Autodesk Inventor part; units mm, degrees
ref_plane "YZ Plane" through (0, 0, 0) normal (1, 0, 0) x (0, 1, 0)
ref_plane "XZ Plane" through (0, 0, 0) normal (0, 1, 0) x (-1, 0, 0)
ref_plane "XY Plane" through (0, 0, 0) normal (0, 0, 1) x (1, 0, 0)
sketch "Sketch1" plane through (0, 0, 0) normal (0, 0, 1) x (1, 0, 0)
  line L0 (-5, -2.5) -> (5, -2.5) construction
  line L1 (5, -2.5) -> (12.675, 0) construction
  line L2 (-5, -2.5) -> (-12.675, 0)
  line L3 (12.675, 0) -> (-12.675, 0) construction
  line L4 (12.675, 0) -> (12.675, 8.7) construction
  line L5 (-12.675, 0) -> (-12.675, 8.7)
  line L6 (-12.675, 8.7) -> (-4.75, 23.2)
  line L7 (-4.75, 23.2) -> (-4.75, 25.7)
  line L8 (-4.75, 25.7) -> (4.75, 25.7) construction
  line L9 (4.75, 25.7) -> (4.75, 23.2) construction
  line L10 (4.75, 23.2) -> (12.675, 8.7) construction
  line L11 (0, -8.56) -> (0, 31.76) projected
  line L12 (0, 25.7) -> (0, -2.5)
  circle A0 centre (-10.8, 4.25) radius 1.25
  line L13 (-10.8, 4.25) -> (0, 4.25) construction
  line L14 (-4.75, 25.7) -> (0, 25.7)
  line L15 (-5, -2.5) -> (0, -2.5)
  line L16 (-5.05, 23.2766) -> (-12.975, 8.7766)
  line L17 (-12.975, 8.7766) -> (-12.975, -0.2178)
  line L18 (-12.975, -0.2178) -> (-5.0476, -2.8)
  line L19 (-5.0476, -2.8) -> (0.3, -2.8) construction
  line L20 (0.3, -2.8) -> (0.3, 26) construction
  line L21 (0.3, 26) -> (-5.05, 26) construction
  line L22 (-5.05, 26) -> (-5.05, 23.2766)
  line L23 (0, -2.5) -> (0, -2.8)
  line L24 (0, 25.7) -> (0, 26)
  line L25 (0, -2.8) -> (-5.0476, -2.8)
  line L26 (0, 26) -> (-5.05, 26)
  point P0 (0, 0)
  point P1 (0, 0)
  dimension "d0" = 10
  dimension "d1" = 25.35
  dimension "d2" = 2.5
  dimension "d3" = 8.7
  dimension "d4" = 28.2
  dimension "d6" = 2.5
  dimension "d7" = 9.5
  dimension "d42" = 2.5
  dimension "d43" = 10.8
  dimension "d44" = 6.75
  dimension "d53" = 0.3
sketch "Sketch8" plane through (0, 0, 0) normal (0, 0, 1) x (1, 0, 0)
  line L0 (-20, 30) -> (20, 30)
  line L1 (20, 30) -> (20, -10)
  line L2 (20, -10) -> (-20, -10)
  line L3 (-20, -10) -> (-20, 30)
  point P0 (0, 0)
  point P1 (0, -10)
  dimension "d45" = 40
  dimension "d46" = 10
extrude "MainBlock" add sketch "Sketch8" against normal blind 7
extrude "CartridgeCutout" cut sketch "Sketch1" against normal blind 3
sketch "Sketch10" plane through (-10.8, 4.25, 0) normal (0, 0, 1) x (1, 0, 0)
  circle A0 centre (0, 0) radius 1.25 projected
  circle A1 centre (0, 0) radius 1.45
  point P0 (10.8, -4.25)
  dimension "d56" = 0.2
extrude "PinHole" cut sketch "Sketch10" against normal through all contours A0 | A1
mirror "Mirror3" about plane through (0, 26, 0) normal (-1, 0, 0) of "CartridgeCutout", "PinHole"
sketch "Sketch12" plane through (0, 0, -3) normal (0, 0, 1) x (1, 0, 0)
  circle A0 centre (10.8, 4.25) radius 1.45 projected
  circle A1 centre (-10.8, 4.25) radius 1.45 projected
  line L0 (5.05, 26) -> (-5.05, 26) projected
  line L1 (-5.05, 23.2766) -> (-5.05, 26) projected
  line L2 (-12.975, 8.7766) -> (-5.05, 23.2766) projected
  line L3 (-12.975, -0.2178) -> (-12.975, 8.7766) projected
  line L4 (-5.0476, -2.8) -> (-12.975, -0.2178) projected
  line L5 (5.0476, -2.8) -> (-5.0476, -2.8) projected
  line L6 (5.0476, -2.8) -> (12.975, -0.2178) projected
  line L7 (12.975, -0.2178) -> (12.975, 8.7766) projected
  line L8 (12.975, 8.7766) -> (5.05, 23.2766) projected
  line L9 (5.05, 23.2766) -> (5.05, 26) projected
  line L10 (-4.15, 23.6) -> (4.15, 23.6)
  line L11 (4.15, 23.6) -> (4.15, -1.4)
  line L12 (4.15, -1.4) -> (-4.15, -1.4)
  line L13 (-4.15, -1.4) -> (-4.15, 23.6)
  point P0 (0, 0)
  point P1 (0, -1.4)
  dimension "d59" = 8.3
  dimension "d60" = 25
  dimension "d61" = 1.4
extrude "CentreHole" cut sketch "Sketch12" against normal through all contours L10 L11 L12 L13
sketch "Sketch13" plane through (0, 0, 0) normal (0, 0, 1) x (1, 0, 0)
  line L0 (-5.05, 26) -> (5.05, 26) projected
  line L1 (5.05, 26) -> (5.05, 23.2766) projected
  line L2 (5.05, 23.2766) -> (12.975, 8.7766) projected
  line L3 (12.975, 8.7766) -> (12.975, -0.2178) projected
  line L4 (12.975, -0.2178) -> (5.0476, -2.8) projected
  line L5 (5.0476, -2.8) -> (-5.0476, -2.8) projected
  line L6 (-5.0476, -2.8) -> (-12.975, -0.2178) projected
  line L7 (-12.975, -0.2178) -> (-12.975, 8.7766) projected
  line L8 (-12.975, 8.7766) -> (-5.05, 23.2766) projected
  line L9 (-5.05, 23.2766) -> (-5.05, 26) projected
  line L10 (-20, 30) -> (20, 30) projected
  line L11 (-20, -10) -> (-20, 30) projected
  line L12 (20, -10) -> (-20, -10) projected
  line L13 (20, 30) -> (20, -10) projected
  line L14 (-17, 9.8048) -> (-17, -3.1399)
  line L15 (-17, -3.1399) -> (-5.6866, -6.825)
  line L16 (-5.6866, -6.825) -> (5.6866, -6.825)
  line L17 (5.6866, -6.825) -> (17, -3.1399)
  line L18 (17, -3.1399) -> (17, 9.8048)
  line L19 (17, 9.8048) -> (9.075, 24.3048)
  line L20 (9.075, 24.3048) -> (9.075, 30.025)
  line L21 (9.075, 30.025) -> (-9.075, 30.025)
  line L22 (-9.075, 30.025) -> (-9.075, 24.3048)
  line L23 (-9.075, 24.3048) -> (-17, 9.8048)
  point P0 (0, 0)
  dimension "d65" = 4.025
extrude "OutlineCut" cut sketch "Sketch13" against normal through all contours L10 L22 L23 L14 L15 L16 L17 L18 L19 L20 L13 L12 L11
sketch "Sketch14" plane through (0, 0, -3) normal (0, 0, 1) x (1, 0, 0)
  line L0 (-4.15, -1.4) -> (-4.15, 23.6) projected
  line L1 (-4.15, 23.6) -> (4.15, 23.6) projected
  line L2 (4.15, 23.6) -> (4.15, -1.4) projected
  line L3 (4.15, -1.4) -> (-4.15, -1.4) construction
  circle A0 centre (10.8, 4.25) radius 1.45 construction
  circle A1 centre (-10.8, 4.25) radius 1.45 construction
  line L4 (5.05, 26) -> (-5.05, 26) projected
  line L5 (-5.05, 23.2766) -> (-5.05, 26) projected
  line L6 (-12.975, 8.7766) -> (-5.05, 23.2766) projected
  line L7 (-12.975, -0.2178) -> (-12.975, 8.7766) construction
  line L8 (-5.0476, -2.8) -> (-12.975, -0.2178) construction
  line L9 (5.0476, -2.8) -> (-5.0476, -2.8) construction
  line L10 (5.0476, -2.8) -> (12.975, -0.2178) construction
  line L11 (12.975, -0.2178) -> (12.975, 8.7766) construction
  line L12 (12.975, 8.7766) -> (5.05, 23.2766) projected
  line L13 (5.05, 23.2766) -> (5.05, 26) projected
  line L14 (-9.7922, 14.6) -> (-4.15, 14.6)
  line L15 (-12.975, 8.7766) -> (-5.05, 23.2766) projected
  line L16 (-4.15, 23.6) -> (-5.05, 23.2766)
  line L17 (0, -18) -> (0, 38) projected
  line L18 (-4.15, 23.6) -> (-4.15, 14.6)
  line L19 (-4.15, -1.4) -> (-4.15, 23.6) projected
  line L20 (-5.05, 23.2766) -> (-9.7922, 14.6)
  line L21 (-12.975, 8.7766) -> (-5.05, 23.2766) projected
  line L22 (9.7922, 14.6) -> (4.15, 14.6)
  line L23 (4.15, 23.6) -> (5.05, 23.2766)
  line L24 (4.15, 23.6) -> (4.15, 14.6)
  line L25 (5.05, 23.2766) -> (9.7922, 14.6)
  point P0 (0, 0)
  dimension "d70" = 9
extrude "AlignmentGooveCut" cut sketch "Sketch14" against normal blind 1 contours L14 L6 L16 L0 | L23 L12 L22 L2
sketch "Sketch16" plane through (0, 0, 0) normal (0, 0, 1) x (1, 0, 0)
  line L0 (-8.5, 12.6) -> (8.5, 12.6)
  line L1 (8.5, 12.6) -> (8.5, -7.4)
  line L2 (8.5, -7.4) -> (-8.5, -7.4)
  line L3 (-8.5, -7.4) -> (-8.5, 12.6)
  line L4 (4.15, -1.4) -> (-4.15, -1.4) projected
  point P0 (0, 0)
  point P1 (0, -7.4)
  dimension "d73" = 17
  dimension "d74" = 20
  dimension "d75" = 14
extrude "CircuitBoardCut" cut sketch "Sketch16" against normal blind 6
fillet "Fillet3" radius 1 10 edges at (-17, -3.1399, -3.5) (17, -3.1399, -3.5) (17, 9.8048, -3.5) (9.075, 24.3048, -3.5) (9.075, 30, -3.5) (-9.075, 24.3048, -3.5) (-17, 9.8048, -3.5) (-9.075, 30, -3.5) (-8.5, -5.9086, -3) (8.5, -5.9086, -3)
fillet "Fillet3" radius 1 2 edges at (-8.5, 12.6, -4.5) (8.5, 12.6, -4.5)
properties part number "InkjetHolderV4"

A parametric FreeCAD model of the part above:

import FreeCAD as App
import Part
import Sketcher
from FreeCAD import Vector
Q = App.Units.Quantity


def edges_at(feature, points):
    """Names of the edges that pass closest to the given points."""
    edges = feature.Shape.Edges
    near = lambda p: min(range(len(edges)), key=lambda i: edges[i].distToShape(Part.Vertex(*p))[0])
    return sorted({f"Edge{near(p) + 1}" for p in points})


def add_polygon(sketch, points):
    """Adds a closed chain of lines whose ends are joined by coincident constraints."""
    first, n = sketch.GeometryCount, len(points)
    for a, b in zip(points, points[1:] + points[:1]):
        sketch.addGeometry(Part.LineSegment(App.Vector(*a, 0), App.Vector(*b, 0)), False)
    for i in range(n):
        sketch.addConstraint(Sketcher.Constraint("Coincident", first + i, 2, first + (i + 1) % n, 1))

doc = App.newDocument("Part")
body = doc.addObject("PartDesign::Body", "Body")

# Sketch on XY plane
sketch1 = body.newObject("Sketcher::SketchObject", "Sketch")
sketch1.AttachmentSupport = (doc.getObject("XY_Plane"), [""])
sketch1.MapMode = "FlatFace"
add_polygon(sketch1, [(20, 30), (-20, 30), (-20, -10), (20, -10)])  # lines 0-3
sketch1.addConstraint([
    Sketcher.Constraint("Horizontal", 0),
    Sketcher.Constraint("Vertical", 1),
    Sketcher.Constraint("Horizontal", 2),
    Sketcher.Constraint("Vertical", 3),
    Sketcher.Constraint("Equal", 2, 1),
    Sketcher.Constraint("DistanceX", 0, 2, 0, 1, 40.0),
    Sketcher.Constraint("DistanceY", 1, 2, -1, 1, 10.0),
    Sketcher.Constraint("DistanceX", 0, 2, -1, 1, 20.0),
])
pad1 = body.newObject("PartDesign::Pad", "Pad")
pad1.Profile = sketch1
pad1.Length = 7
pad1.Reversed = True

# Sketch on XY plane
sketch2 = body.newObject("Sketcher::SketchObject", "Sketch001")
sketch2.AttachmentSupport = (doc.getObject("XY_Plane"), [""])
sketch2.MapMode = "FlatFace"
add_polygon(sketch2, [(0, -2.8), (0, 26), (-5.05, 26), (-5.05, 23.2766), (-12.975, 8.7766), (-12.975, -0.2178), (-5.0476, -2.8)])  # lines 0-6
sketch2.addGeometry(Part.Circle(Vector(-10.8, 4.25, 0), Vector(0, 0, 1), 1.25), False)  # 7
sketch2.addConstraint([
    Sketcher.Constraint("Vertical", 0),
    Sketcher.Constraint("Horizontal", 1),
    Sketcher.Constraint("Vertical", 2),
    Sketcher.Constraint("Vertical", 4),
    Sketcher.Constraint("Horizontal", 6),
    Sketcher.Constraint("PointOnObject", 0, 2, -2),
    Sketcher.Constraint("Diameter", 7, 2.5),
    Sketcher.Constraint("DistanceX", 7, 3, -1, 1, 10.8),
    Sketcher.Constraint("DistanceY", 0, 1, 0, 2, 28.8),
    Sketcher.Constraint("DistanceY", -1, 1, 0, 2, 26.0),
    Sketcher.Constraint("DistanceX", 1, 2, 1, 1, 5.05),
    Sketcher.Constraint("Angle", 3, Q("-118.659 deg")),
    Sketcher.Constraint("DistanceY", 3, 2, 2, 2, 14.5),
    Sketcher.Constraint("DistanceY", -1, 1, 7, 3, 4.25),
    Sketcher.Constraint("DistanceX", 6, 1, 6, 2, 5.0476),
    Sketcher.Constraint("DistanceY", 2, 2, 2, 1, 2.7234),
    Sketcher.Constraint("DistanceY", 4, 2, 4, 1, 8.9944),
])
pocket1 = body.newObject("PartDesign::Pocket", "Pocket")
pocket1.Profile = sketch2
pocket1.Length = 3

# Sketch on XY plane
sketch3 = body.newObject("Sketcher::SketchObject", "Sketch002")
sketch3.AttachmentSupport = (doc.getObject("XY_Plane"), [""])
sketch3.MapMode = "FlatFace"
sketch3.addGeometry(Part.Circle(Vector(-10.8, 4.25, 0), Vector(0, 0, 1), 1.45), False)
sketch3.addConstraint([
    Sketcher.Constraint("Diameter", 0, 2.9),
    Sketcher.Constraint("DistanceX", 0, 3, -1, 1, 10.8),
    Sketcher.Constraint("DistanceY", -1, 1, 0, 3, 4.25),
])
pocket2 = body.newObject("PartDesign::Pocket", "Pocket001")
pocket2.Profile = sketch3
pocket2.Type = "ThroughAll"
doc.recompute()

mirrored = body.newObject("PartDesign::Mirrored", "Mirrored")
mirrored.Originals = [pocket1, pocket2]
mirrored.MirrorPlane = (doc.getObject("YZ_Plane"), [""])
body.Tip = mirrored

# Sketch on XY plane
sketch4 = body.newObject("Sketcher::SketchObject", "Sketch003")
sketch4.AttachmentSupport = (doc.getObject("XY_Plane"), [""])
sketch4.MapMode = "FlatFace"
sketch4.AttachmentOffset = App.Placement(Vector(0, 0, -3), App.Rotation())
add_polygon(sketch4, [(4.15, 23.6), (-4.15, 23.6), (-4.15, -1.4), (4.15, -1.4)])  # lines 0-3
sketch4.addConstraint([
    Sketcher.Constraint("Horizontal", 0),
    Sketcher.Constraint("Vertical", 1),
    Sketcher.Constraint("Horizontal", 2),
    Sketcher.Constraint("Vertical", 3),
    Sketcher.Constraint("DistanceY", 1, 2, 1, 1, 25.0),
    Sketcher.Constraint("DistanceX", 0, 2, 0, 1, 8.3),
    Sketcher.Constraint("DistanceY", 1, 2, -1, 1, 1.4),
    Sketcher.Constraint("DistanceX", 0, 2, -1, 1, 4.15),
])
pocket3 = body.newObject("PartDesign::Pocket", "Pocket002")
pocket3.Profile = sketch4
pocket3.Type = "ThroughAll"

# Sketch on XY plane
sketch5 = body.newObject("Sketcher::SketchObject", "Sketch004")
sketch5.AttachmentSupport = (doc.getObject("XY_Plane"), [""])
sketch5.MapMode = "FlatFace"
add_polygon(sketch5, [(-9.075, 30), (-20, 30), (-20, -10), (20, -10), (20, 30), (9.075, 30), (9.075, 24.3048), (17, 9.8048), (17, -3.1399), (5.6866, -6.825), (-5.6866, -6.825), (-17, -3.1399), (-17, 9.8048), (-9.075, 24.3048)])  # lines 0-13
sketch5.addConstraint([
    Sketcher.Constraint("Horizontal", 0),
    Sketcher.Constraint("Vertical", 1),
    Sketcher.Constraint("Horizontal", 2),
    Sketcher.Constraint("Vertical", 3),
    Sketcher.Constraint("Horizontal", 4),
    Sketcher.Constraint("Vertical", 5),
    Sketcher.Constraint("Vertical", 7),
    Sketcher.Constraint("Horizontal", 9),
    Sketcher.Constraint("Vertical", 11),
    Sketcher.Constraint("Vertical", 13),
    Sketcher.Constraint("Symmetric", 0, 2, 3, 2, -2),
    Sketcher.Constraint("Symmetric", 7, 2, 10, 2, -2),
    Sketcher.Constraint("Symmetric", 5, 2, 12, 2, -2),
    Sketcher.Constraint("Horizontal", 6, 2, 11, 2),
    Sketcher.Constraint("Equal", 2, 1),
    Sketcher.Constraint("Equal", 8, 10),
    Sketcher.Constraint("DistanceX", 2, 1, 2, 2, 40.0),
    Sketcher.Constraint("DistanceY", -1, 1, 0, 2, 30.0),
    Sketcher.Constraint("DistanceX", -1, 1, 6, 2, 17.0),
    Sketcher.Constraint("Angle", 6, Q("-61.341 deg")),
    Sketcher.Constraint("DistanceY", 6, 2, 5, 2, 14.5),
    Sketcher.Constraint("DistanceY", 7, 2, -1, 1, 3.14),
    Sketcher.Constraint("DistanceX", 9, 2, 9, 1, 11.3732),
    Sketcher.Constraint("DistanceY", 5, 2, 5, 1, 5.6952),
    Sketcher.Constraint("DistanceY", 8, 2, -1, 1, 6.825),
])
pocket4 = body.newObject("PartDesign::Pocket", "Pocket003")
pocket4.Profile = sketch5
pocket4.Type = "ThroughAll"

# Sketch on XY plane
sketch6 = body.newObject("Sketcher::SketchObject", "Sketch005")
sketch6.AttachmentSupport = (doc.getObject("XY_Plane"), [""])
sketch6.MapMode = "FlatFace"
sketch6.AttachmentOffset = App.Placement(Vector(0, 0, -3), App.Rotation())
add_polygon(sketch6, [(-9.7922, 14.6), (-4.15, 14.6), (-4.15, 23.6), (-5.05, 23.2766)])  # lines 0-3
add_polygon(sketch6, [(5.05, 23.2766), (4.15, 23.6), (4.15, 14.6), (9.792208, 14.600004)])  # lines 4-7
sketch6.addConstraint([
    Sketcher.Constraint("Horizontal", 0),
    Sketcher.Constraint("Vertical", 1),
    Sketcher.Constraint("Vertical", 5),
    Sketcher.Constraint("Horizontal", 6),
    Sketcher.Constraint("Symmetric", 1, 2, 4, 2, -2),
    Sketcher.Constraint("Symmetric", 3, 2, 6, 2, -2),
    Sketcher.Constraint("Symmetric", 2, 2, 7, 2, -2),
    Sketcher.Constraint("DistanceY", 1, 1, 1, 2, 9.0),
    Sketcher.Constraint("DistanceY", -1, 1, 0, 2, 14.6),
    Sketcher.Constraint("Angle", 3, Q("-118.659 deg")),
    Sketcher.Constraint("DistanceX", 2, 2, 1, 2, 0.9),
    Sketcher.Constraint("DistanceX", 1, 2, 4, 2, 8.3),
    Sketcher.Constraint("Distance", 3, 9.888),
])
pocket5 = body.newObject("PartDesign::Pocket", "Pocket004")
pocket5.Profile = sketch6
pocket5.Length = 1

# Sketch on XY plane
sketch7 = body.newObject("Sketcher::SketchObject", "Sketch006")
sketch7.AttachmentSupport = (doc.getObject("XY_Plane"), [""])
sketch7.MapMode = "FlatFace"
add_polygon(sketch7, [(8.5, 12.6), (-8.5, 12.6), (-8.5, -7.4), (8.5, -7.4)])  # lines 0-3
sketch7.addConstraint([
    Sketcher.Constraint("Horizontal", 0),
    Sketcher.Constraint("Vertical", 1),
    Sketcher.Constraint("Horizontal", 2),
    Sketcher.Constraint("Vertical", 3),
    Sketcher.Constraint("DistanceX", 0, 2, 0, 1, 17.0),
    Sketcher.Constraint("DistanceY", 1, 2, 1, 1, 20.0),
    Sketcher.Constraint("DistanceX", 0, 2, -1, 1, 8.5),
    Sketcher.Constraint("DistanceY", -1, 1, 0, 2, 12.6),
])
pocket6 = body.newObject("PartDesign::Pocket", "Pocket005")
pocket6.Profile = sketch7
pocket6.Length = 6
doc.recompute()

fillet = body.newObject("PartDesign::Fillet", "Fillet")
fillet.Base = (pocket6, edges_at(pocket6, [
    (-17, -3.14, -3.5),
    (17, -3.14, -3.5),
    (17, 9.805, -3.5),
    (9.075, 24.305, -3.5),
    (9.075, 30, -3.5),
    (-9.075, 24.305, -3.5),
    (-17, 9.805, -3.5),
    (-9.075, 30, -3.5),
    (-8.5, -5.909, -3),
    (8.5, -5.909, -3),
]))
fillet.Radius = 1
doc.recompute()

fillet2 = body.newObject("PartDesign::Fillet", "Fillet001")
fillet2.Base = (fillet, edges_at(fillet, [(-8.5, 12.6, -4.5), (8.5, 12.6, -4.5)]))
fillet2.Radius = 1

doc.recompute()
